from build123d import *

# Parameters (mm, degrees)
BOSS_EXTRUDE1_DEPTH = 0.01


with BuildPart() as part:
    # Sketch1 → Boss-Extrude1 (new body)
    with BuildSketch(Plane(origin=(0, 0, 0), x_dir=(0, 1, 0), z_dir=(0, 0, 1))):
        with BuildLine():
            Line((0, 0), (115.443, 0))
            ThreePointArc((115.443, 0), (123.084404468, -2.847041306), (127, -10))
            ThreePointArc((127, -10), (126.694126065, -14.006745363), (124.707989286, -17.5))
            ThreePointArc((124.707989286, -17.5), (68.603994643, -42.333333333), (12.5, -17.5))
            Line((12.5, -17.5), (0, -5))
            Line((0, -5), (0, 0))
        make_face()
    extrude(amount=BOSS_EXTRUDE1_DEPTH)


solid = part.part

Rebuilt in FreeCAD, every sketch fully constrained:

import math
import FreeCAD as App
import Part
import Sketcher
Q = App.Units.Quantity

doc = App.newDocument("Part")
params = doc.addObject("Spreadsheet::Sheet", "Params")
for row, (alias, value) in enumerate([
    ("sketch1_width", "5 mm"),
    ("pad1_length", "0.01 mm"),
], start=1):
    params.set(f"A{row}", alias)
    params.set(f"B{row}", "=" + value)
    params.setAlias(f"B{row}", alias)

body = doc.addObject("PartDesign::Body", "Body")

sketch1 = body.newObject("Sketcher::SketchObject", "Sketch")
sketch1.AttachmentSupport = (doc.getObject("XY_Plane"), [""])
sketch1.MapMode = "FlatFace"
sketch1.addGeometry(Part.LineSegment(App.Vector(0, 115.443, 0), App.Vector(0, 0, 0)), False)
sketch1.addGeometry(Part.LineSegment(App.Vector(0, 0, 0), App.Vector(5, 0, 0)), False)
sketch1.addGeometry(Part.LineSegment(App.Vector(5, 0, 0), App.Vector(17.5, 12.5, 0)), False)
sketch1.addGeometry(Part.ArcOfCircle(Part.Circle(App.Vector(-33.459002, 68.603995, 0), App.Vector(0, 0, 1), 75.792335), math.radians(-47.751275), math.radians(47.751275)), False)
sketch1.addGeometry(Part.ArcOfCircle(Part.Circle(App.Vector(11.320725, 117.904834, 0), App.Vector(0, 0, 1), 9.190558), math.radians(47.751275), math.radians(98.262271)), False)
sketch1.addGeometry(Part.ArcOfCircle(Part.Circle(App.Vector(11.678212, 115.443, 0), App.Vector(0, 0, 1), 11.678212), math.radians(98.262271), math.radians(180)), False)
sketch1.addConstraint(Sketcher.Constraint("Coincident", 0, 2, 1, 1))
sketch1.addConstraint(Sketcher.Constraint("Coincident", 1, 2, 2, 1))
sketch1.addConstraint(Sketcher.Constraint("Coincident", 2, 2, 3, 1))
sketch1.addConstraint(Sketcher.Constraint("Tangent", 3, 2, 4, 1))
sketch1.addConstraint(Sketcher.Constraint("Tangent", 4, 2, 5, 1))
sketch1.addConstraint(Sketcher.Constraint("Tangent", 5, 2, 0, 1))
sketch1.addConstraint(Sketcher.Constraint("Vertical", 0))
sketch1.addConstraint(Sketcher.Constraint("Horizontal", 1))
sketch1.addConstraint(Sketcher.Constraint("Coincident", 0, 2, -1, 1))
sketch1.addConstraint(Sketcher.Constraint("Vertical", 2, 2, 3, 2))
sketch1.addConstraint(Sketcher.Constraint("DistanceX", 1, 1, 1, 2, 5.0))
sketch1.addConstraint(Sketcher.Constraint("Angle", 2, Q("45 deg")))
sketch1.addConstraint(Sketcher.Constraint("DistanceX", -1, 1, 4, 2, 10.0))
sketch1.addConstraint(Sketcher.Constraint("DistanceY", -1, 1, 4, 2, 127.0))
sketch1.addConstraint(Sketcher.Constraint("DistanceX", -1, 1, 2, 2, 17.5))
sketch1.addConstraint(Sketcher.Constraint("DistanceY", 0, 2, 0, 1, 115.443))
sketch1.addConstraint(Sketcher.Constraint("Radius", 4, 9.190558))
sketch1.setExpression("Constraints[10]", "Params.sketch1_width")
pad1 = body.newObject("PartDesign::Pad", "Pad")
pad1.Profile = sketch1
pad1.setExpression("Length", "Params.pad1_length")

doc.recompute()
